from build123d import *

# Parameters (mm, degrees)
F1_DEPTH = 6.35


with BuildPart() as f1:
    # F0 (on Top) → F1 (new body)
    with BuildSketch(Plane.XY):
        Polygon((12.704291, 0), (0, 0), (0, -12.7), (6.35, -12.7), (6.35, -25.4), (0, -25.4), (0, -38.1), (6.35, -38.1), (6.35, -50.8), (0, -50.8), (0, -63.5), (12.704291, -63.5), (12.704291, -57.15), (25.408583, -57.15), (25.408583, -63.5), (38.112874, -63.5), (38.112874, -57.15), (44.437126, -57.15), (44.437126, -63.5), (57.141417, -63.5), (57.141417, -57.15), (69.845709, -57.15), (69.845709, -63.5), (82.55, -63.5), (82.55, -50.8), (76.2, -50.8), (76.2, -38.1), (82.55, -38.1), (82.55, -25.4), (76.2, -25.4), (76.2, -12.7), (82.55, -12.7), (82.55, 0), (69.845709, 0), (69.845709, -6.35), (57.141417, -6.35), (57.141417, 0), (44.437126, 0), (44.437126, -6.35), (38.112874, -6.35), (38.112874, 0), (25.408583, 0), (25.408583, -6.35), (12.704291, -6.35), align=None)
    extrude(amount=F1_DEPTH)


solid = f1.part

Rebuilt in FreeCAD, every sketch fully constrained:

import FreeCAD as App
import Part
import Sketcher

V = App.Vector
Q = App.Units.Quantity


def add_polygon(sketch, points):
    """Adds a closed chain of lines whose ends are joined by coincident constraints."""
    first, n = sketch.GeometryCount, len(points)
    for a, b in zip(points, points[1:] + points[:1]):
        sketch.addGeometry(Part.LineSegment(App.Vector(*a, 0), App.Vector(*b, 0)), False)
    for i in range(n):
        sketch.addConstraint(Sketcher.Constraint("Coincident", first + i, 2, first + (i + 1) % n, 1))

doc = App.newDocument("Part")
params = doc.addObject("Spreadsheet::Sheet", "Params")
for row, (alias, value) in enumerate([
    ("sketch1_height", "0.5 in"),
    ("sketch1_width", "0.25 in"),
    ("pad1_length", "0.25 in"),
], start=1):
    params.set(f"A{row}", alias)
    params.set(f"B{row}", "=" + value)
    params.setAlias(f"B{row}", alias)

body = doc.addObject("PartDesign::Body", "Body")

sketch1 = body.newObject("Sketcher::SketchObject", "Sketch")
sketch1.AttachmentSupport = (doc.getObject("XY_Plane"), [""])
sketch1.MapMode = "FlatFace"
add_polygon(sketch1, [(13, 0), (0, 0), (0, -13), (6, -13), (6, -25), (0, -25), (0, -38), (6, -38), (6, -51), (0, -51), (0, -64), (13, -64), (13, -57), (25, -57), (25, -64), (38, -64), (38, -57), (44, -57), (44, -64), (57, -64), (57, -57), (70, -57), (70, -64), (83, -64), (83, -51), (76, -51), (76, -38), (83, -38), (83, -25), (76, -25), (76, -13), (83, -13), (83, 0), (70, 0), (70, -6), (57, -6), (57, 0), (44, 0), (44, -6), (38, -6), (38, 0), (25, 0), (25, -6), (13, -6)])
sketch1.addConstraint([
    Sketcher.Constraint("Horizontal", 0),
    Sketcher.Constraint("Vertical", 1),
    Sketcher.Constraint("Horizontal", 2),
    Sketcher.Constraint("Vertical", 3),
    Sketcher.Constraint("Horizontal", 4),
    Sketcher.Constraint("Vertical", 5),
    Sketcher.Constraint("Horizontal", 6),
    Sketcher.Constraint("Vertical", 7),
    Sketcher.Constraint("Horizontal", 8),
    Sketcher.Constraint("Vertical", 9),
    Sketcher.Constraint("Horizontal", 10),
    Sketcher.Constraint("Vertical", 11),
    Sketcher.Constraint("Horizontal", 12),
    Sketcher.Constraint("Vertical", 13),
    Sketcher.Constraint("Horizontal", 14),
    Sketcher.Constraint("Vertical", 15),
    Sketcher.Constraint("Horizontal", 16),
    Sketcher.Constraint("Vertical", 17),
    Sketcher.Constraint("Horizontal", 18),
    Sketcher.Constraint("Vertical", 19),
    Sketcher.Constraint("Horizontal", 20),
    Sketcher.Constraint("Vertical", 21),
    Sketcher.Constraint("Horizontal", 22),
    Sketcher.Constraint("Vertical", 23),
    Sketcher.Constraint("Horizontal", 24),
    Sketcher.Constraint("Vertical", 25),
    Sketcher.Constraint("Horizontal", 26),
    Sketcher.Constraint("Vertical", 27),
    Sketcher.Constraint("Horizontal", 28),
    Sketcher.Constraint("Vertical", 29),
    Sketcher.Constraint("Horizontal", 30),
    Sketcher.Constraint("Vertical", 31),
    Sketcher.Constraint("Horizontal", 32),
    Sketcher.Constraint("Vertical", 33),
    Sketcher.Constraint("Horizontal", 34),
    Sketcher.Constraint("Vertical", 35),
    Sketcher.Constraint("Horizontal", 36),
    Sketcher.Constraint("Vertical", 37),
    Sketcher.Constraint("Horizontal", 38),
    Sketcher.Constraint("Vertical", 39),
    Sketcher.Constraint("Horizontal", 40),
    Sketcher.Constraint("Vertical", 41),
    Sketcher.Constraint("Horizontal", 42),
    Sketcher.Constraint("Vertical", 43),
    Sketcher.Constraint("Coincident", 0, 2, -1, 1),
    Sketcher.Constraint("PointOnObject", 4, 2, -2),
    Sketcher.Constraint("PointOnObject", 8, 2, -2),
    Sketcher.Constraint("PointOnObject", 31, 2, -1),
    Sketcher.Constraint("PointOnObject", 35, 2, -1),
    Sketcher.Constraint("PointOnObject", 39, 2, -1),
    Sketcher.Constraint("Horizontal", 10, 2, 13, 2),
    Sketcher.Constraint("Horizontal", 12, 2, 15, 2),
    Sketcher.Constraint("Horizontal", 14, 2, 17, 2),
    Sketcher.Constraint("Horizontal", 16, 2, 19, 2),
    Sketcher.Constraint("Horizontal", 18, 2, 21, 2),
    Sketcher.Constraint("Horizontal", 8, 2, 23, 2),
    Sketcher.Constraint("Horizontal", 6, 2, 25, 2),
    Sketcher.Constraint("Horizontal", 4, 2, 27, 2),
    Sketcher.Constraint("Horizontal", 2, 2, 29, 2),
    Sketcher.Constraint("Horizontal", 34, 2, 37, 2),
    Sketcher.Constraint("Horizontal", 38, 2, 41, 2),
    Sketcher.Constraint("Vertical", 3, 2, 6, 2),
    Sketcher.Constraint("Vertical", 23, 2, 26, 2),
    Sketcher.Constraint("Vertical", 25, 2, 28, 2),
    Sketcher.Constraint("Vertical", 27, 2, 30, 2),
    Sketcher.Constraint("Vertical", 21, 2, 32, 2),
    Sketcher.Constraint("Vertical", 19, 2, 34, 2),
    Sketcher.Constraint("Vertical", 17, 2, 36, 2),
    Sketcher.Constraint("Vertical", 15, 2, 38, 2),
    Sketcher.Constraint("Vertical", 13, 2, 40, 2),
    Sketcher.Constraint("Vertical", 11, 2, 42, 2),
    Sketcher.Constraint("Equal", 10, 12),
    Sketcher.Constraint("Equal", 12, 14),
    Sketcher.Constraint("Equal", 14, 18),
    Sketcher.Constraint("Equal", 18, 20),
    Sketcher.Constraint("Equal", 20, 22),
    Sketcher.Constraint("Equal", 8, 24),
    Sketcher.Constraint("Equal", 1, 3),
    Sketcher.Constraint("Equal", 3, 5),
    Sketcher.Constraint("Equal", 5, 7),
    Sketcher.Constraint("Equal", 7, 9),
    Sketcher.Constraint("Equal", 30, 11),
    Sketcher.Constraint("Equal", 21, 33),
    Sketcher.Constraint("DistanceY", 1, 2, 1, 1, Q("0.5 in")),
    Sketcher.Constraint("DistanceX", -1, 1, 24, 2, Q("3 in")),
    Sketcher.Constraint("DistanceX", 2, 1, 2, 2, Q("0.25 in")),
    Sketcher.Constraint("DistanceX", 0, 2, 0, 1, Q("12.704291 mm")),
])
sketch1.setExpression("Constraints[127]", "Params.sketch1_height")
sketch1.setExpression("Constraints[129]", "Params.sketch1_width")
pad1 = body.newObject("PartDesign::Pad", "Pad")
pad1.Profile = sketch1
pad1.setExpression("Length", "Params.pad1_length")

doc.recompute()
